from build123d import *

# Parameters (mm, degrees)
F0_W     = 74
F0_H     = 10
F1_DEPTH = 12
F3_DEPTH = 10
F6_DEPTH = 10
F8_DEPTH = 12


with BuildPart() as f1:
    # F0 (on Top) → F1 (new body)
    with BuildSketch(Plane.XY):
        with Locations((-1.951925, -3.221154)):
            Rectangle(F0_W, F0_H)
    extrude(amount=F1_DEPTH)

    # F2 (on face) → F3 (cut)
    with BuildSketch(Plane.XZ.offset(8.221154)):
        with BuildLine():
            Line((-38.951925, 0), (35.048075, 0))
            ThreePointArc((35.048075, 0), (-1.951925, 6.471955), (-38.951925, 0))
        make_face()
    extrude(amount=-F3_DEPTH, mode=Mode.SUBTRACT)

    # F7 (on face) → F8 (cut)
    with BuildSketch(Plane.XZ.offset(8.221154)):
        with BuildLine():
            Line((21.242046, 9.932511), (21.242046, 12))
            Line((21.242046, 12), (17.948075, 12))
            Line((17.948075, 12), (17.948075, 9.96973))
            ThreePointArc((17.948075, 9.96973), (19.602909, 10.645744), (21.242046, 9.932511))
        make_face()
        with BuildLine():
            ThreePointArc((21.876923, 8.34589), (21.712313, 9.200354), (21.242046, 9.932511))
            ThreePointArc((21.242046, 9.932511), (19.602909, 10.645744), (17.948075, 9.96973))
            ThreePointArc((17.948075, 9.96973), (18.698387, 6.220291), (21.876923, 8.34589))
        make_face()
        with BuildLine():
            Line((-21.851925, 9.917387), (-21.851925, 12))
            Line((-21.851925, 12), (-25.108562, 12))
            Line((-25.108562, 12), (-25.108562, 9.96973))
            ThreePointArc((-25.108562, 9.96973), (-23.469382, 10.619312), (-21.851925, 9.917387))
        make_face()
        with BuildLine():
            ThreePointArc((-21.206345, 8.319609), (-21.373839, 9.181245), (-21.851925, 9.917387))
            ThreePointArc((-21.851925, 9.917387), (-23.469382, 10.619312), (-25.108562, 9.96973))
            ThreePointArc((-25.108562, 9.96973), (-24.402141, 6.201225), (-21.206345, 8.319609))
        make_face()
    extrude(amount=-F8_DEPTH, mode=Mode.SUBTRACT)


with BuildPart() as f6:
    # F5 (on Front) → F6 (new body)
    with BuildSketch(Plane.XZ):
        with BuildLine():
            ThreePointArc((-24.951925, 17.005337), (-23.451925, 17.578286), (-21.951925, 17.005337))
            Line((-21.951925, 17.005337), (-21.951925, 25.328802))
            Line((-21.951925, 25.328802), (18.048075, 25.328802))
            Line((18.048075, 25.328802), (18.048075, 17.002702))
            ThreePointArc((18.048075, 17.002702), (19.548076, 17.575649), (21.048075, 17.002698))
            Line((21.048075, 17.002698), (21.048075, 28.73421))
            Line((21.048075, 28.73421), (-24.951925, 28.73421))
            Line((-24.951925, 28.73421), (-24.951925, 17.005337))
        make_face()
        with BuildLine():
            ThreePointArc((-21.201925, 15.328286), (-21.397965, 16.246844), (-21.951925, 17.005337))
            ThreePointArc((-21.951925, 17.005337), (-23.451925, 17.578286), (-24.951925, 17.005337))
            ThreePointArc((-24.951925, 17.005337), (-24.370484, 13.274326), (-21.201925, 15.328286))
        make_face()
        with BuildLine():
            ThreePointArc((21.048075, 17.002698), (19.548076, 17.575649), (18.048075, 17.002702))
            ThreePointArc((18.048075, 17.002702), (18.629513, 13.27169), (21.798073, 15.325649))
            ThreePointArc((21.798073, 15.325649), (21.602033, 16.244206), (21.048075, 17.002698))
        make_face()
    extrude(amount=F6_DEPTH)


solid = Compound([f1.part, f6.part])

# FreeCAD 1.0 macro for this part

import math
import FreeCAD as App
import Part
import Sketcher
from FreeCAD import Vector
Q = App.Units.Quantity


def add_polygon(sketch, points):
    """Adds a closed chain of lines whose ends are joined by coincident constraints."""
    first, n = sketch.GeometryCount, len(points)
    for a, b in zip(points, points[1:] + points[:1]):
        sketch.addGeometry(Part.LineSegment(App.Vector(*a, 0), App.Vector(*b, 0)), False)
    for i in range(n):
        sketch.addConstraint(Sketcher.Constraint("Coincident", first + i, 2, first + (i + 1) % n, 1))

doc = App.newDocument("Part")
params = doc.addObject("Spreadsheet::Sheet", "Params")
for row, (alias, value) in enumerate([
    ("sketch1_width", "74 mm"),
    ("sketch1_height", "10 mm"),
    ("pad1_length", "12 mm"),
    ("sketch2_radius", "109.000001 mm"),
    ("sketch2_width", "74 mm"),
    ("pocket1_length", "10 mm"),
    ("sketch3_radius", "2.3 mm"),
    ("pocket2_length", "12 mm"),
    ("sketch4_width", "40 mm"),
    ("sketch4_width2", "46 mm"),
    ("sketch4_radius", "2.25 mm"),
    ("pad2_length", "10 mm"),
], start=1):
    params.set(f"A{row}", alias)
    params.set(f"B{row}", "=" + value)
    params.setAlias(f"B{row}", alias)

body = doc.addObject("PartDesign::Body", "Body")

sketch1 = body.newObject("Sketcher::SketchObject", "Sketch")
sketch1.AttachmentSupport = (doc.getObject("XY_Plane"), [""])
sketch1.MapMode = "FlatFace"
add_polygon(sketch1, [(-39, 2), (-39, -8), (35, -8), (35, 2)])
sketch1.addConstraint([
    Sketcher.Constraint("Vertical", 0),
    Sketcher.Constraint("Horizontal", 1),
    Sketcher.Constraint("Vertical", 2),
    Sketcher.Constraint("Horizontal", 3),
    Sketcher.Constraint("DistanceX", 1, 1, 1, 2, Q("74 mm")),
    Sketcher.Constraint("DistanceY", 0, 2, 0, 1, Q("10 mm")),
    Sketcher.Constraint("DistanceX", 0, 2, -1, 1, Q("38.951925 mm")),
    Sketcher.Constraint("DistanceY", 0, 2, -1, 1, Q("8.221154 mm")),
])
sketch1.setExpression("Constraints[8]", "Params.sketch1_width")
sketch1.setExpression("Constraints[9]", "Params.sketch1_height")
pad1 = body.newObject("PartDesign::Pad", "Pad")
pad1.Profile = sketch1
pad1.setExpression("Length", "Params.pad1_length")

sketch2 = body.newObject("Sketcher::SketchObject", "Sketch001")
sketch2.AttachmentSupport = (doc.getObject("XZ_Plane"), [""])
sketch2.MapMode = "FlatFace"
sketch2.AttachmentOffset = App.Placement(Vector(0, 0, 8.221154), App.Rotation())
sketch2.addGeometry([
    Part.LineSegment(Vector(-39, 0, 0), Vector(35, 0, 0)),
    Part.ArcOfCircle(Part.Circle(Vector(-2, -103, 0), Vector(0, 0, 1), 109), math.radians(70), math.radians(110)),
], False)
sketch2.addConstraint([
    Sketcher.Constraint("Coincident", 0, 1, 1, 2),
    Sketcher.Constraint("Coincident", 1, 1, 0, 2),
    Sketcher.Constraint("Horizontal", 0),
    Sketcher.Constraint("PointOnObject", 0, 1, -1),
    Sketcher.Constraint("Radius", 1, Q("109.000001 mm")),
    Sketcher.Constraint("DistanceX", 0, 1, 0, 2, Q("74 mm")),
    Sketcher.Constraint("DistanceX", 1, 3, -1, 1, Q("1.951925 mm")),
])
sketch2.setExpression("Constraints[4]", "Params.sketch2_radius")
sketch2.setExpression("Constraints[5]", "Params.sketch2_width")
pocket1 = body.newObject("PartDesign::Pocket", "Pocket")
pocket1.Profile = sketch2
pocket1.setExpression("Length", "Params.pocket1_length")

sketch3 = body.newObject("Sketcher::SketchObject", "Sketch002")
sketch3.AttachmentSupport = (doc.getObject("XZ_Plane"), [""])
sketch3.MapMode = "FlatFace"
sketch3.AttachmentOffset = App.Placement(Vector(0, 0, 8.221154), App.Rotation())
sketch3.addGeometry([
    Part.LineSegment(Vector(21.2, 9.9, 0), Vector(21.2, 12, 0)),
    Part.LineSegment(Vector(21.2, 12, 0), Vector(17.9, 12, 0)),
    Part.LineSegment(Vector(17.9, 12, 0), Vector(17.9, 10, 0)),
    Part.ArcOfCircle(Part.Circle(Vector(19.6, 8.3, 0), Vector(0, 0, 1), 2.3), math.radians(135), math.radians(360)),
    Part.ArcOfCircle(Part.Circle(Vector(19.6, 8.3, 0), Vector(0, 0, 1), 2.3), math.radians(0), math.radians(44)),
    Part.LineSegment(Vector(-21.9, 9.9, 0), Vector(-21.9, 12, 0)),
    Part.LineSegment(Vector(-21.9, 12, 0), Vector(-25.1, 12, 0)),
    Part.LineSegment(Vector(-25.1, 12, 0), Vector(-25.1, 10, 0)),
    Part.ArcOfCircle(Part.Circle(Vector(-23.5, 8.3, 0), Vector(0, 0, 1), 2.3), math.radians(134), math.radians(360)),
    Part.ArcOfCircle(Part.Circle(Vector(-23.5, 8.3, 0), Vector(0, 0, 1), 2.3), math.radians(0), math.radians(44)),
], False)
sketch3.addConstraint([
    Sketcher.Constraint("Coincident", 0, 2, 1, 1),
    Sketcher.Constraint("Coincident", 1, 2, 2, 1),
    Sketcher.Constraint("Coincident", 2, 2, 3, 1),
    Sketcher.Constraint("Tangent", 3, 2, 4, 1),
    Sketcher.Constraint("Coincident", 4, 2, 0, 1),
    Sketcher.Constraint("Coincident", 5, 2, 6, 1),
    Sketcher.Constraint("Coincident", 6, 2, 7, 1),
    Sketcher.Constraint("Coincident", 7, 2, 8, 1),
    Sketcher.Constraint("Tangent", 8, 2, 9, 1),
    Sketcher.Constraint("Coincident", 9, 2, 5, 1),
    Sketcher.Constraint("Vertical", 0),
    Sketcher.Constraint("Horizontal", 1),
    Sketcher.Constraint("Vertical", 2),
    Sketcher.Constraint("Vertical", 5),
    Sketcher.Constraint("Horizontal", 6),
    Sketcher.Constraint("Vertical", 7),
    Sketcher.Constraint("Equal", 3, 8),
    Sketcher.Constraint("Equal", 4, 9),
    Sketcher.Constraint("Horizontal", 4, 3, 3, 2),
    Sketcher.Constraint("Horizontal", 1, 2, 5, 2),
    Sketcher.Constraint("Horizontal", 2, 2, 7, 2),
    Sketcher.Constraint("Horizontal", 9, 3, 8, 2),
    Sketcher.Constraint("Radius", 3, Q("2.3 mm")),
    Sketcher.Constraint("DistanceY", -1, 1, 0, 2, Q("12 mm")),
    Sketcher.Constraint("DistanceX", 5, 2, 1, 2, Q("39.8 mm")),
    Sketcher.Constraint("Radius", 4, Q("2.300004 mm")),
    Sketcher.Constraint("DistanceX", 1, 2, 1, 1, Q("3.293971 mm")),
    Sketcher.Constraint("DistanceY", 0, 1, 0, 2, Q("2.067489 mm")),
    Sketcher.Constraint("DistanceY", 2, 2, 2, 1, Q("2.03027 mm")),
    Sketcher.Constraint("DistanceX", 6, 2, 6, 1, Q("3.256637 mm")),
    Sketcher.Constraint("DistanceY", 5, 1, 5, 2, Q("2.082613 mm")),
    Sketcher.Constraint("DistanceX", -1, 1, 4, 3, Q("19.576919 mm")),
])
sketch3.setExpression("Constraints[22]", "Params.sketch3_radius")
pocket2 = body.newObject("PartDesign::Pocket", "Pocket001")
pocket2.Profile = sketch3
pocket2.setExpression("Length", "Params.pocket2_length")
body2 = doc.addObject("PartDesign::Body", "Body001")

sketch4 = body2.newObject("Sketcher::SketchObject", "Sketch003")
sketch4.AttachmentSupport = (doc.getObject("XZ_Plane001"), [""])
sketch4.MapMode = "FlatFace"
sketch4.addGeometry([
    Part.LineSegment(Vector(-22, 17, 0), Vector(-22, 25.3, 0)),
    Part.LineSegment(Vector(-22, 25.3, 0), Vector(18, 25.3, 0)),
    Part.LineSegment(Vector(18, 25.3, 0), Vector(18, 17, 0)),
    Part.ArcOfCircle(Part.Circle(Vector(19.5, 15.3, 0), Vector(0, 0, 1), 2.3), math.radians(132), math.radians(360)),
    Part.ArcOfCircle(Part.Circle(Vector(19.5, 15.3, 0), Vector(0, 0, 1), 2.3), math.radians(0), math.radians(48)),
    Part.LineSegment(Vector(21, 17, 0), Vector(21, 28.7, 0)),
    Part.LineSegment(Vector(21, 28.7, 0), Vector(-25, 28.7, 0)),
    Part.LineSegment(Vector(-25, 28.7, 0), Vector(-25, 17, 0)),
    Part.ArcOfCircle(Part.Circle(Vector(-23.5, 15.3, 0), Vector(0, 0, 1), 2.3), math.radians(132), math.radians(360)),
    Part.ArcOfCircle(Part.Circle(Vector(-23.5, 15.3, 0), Vector(0, 0, 1), 2.2), math.radians(0), math.radians(48)),
], False)
sketch4.addConstraint([
    Sketcher.Constraint("Coincident", 0, 2, 1, 1),
    Sketcher.Constraint("Coincident", 1, 2, 2, 1),
    Sketcher.Constraint("Coincident", 2, 2, 3, 1),
    Sketcher.Constraint("Tangent", 3, 2, 4, 1),
    Sketcher.Constraint("Coincident", 4, 2, 5, 1),
    Sketcher.Constraint("Coincident", 5, 2, 6, 1),
    Sketcher.Constraint("Coincident", 6, 2, 7, 1),
    Sketcher.Constraint("Coincident", 7, 2, 8, 1),
    Sketcher.Constraint("Tangent", 8, 2, 9, 1),
    Sketcher.Constraint("Coincident", 9, 2, 0, 1),
    Sketcher.Constraint("Vertical", 0),
    Sketcher.Constraint("Horizontal", 1),
    Sketcher.Constraint("Vertical", 2),
    Sketcher.Constraint("Vertical", 5),
    Sketcher.Constraint("Horizontal", 6),
    Sketcher.Constraint("Vertical", 7),
    Sketcher.Constraint("Equal", 3, 8),
    Sketcher.Constraint("Equal", 8, 9),
    Sketcher.Constraint("Horizontal", 4, 3, 3, 2),
    Sketcher.Constraint("Horizontal", 9, 3, 8, 2),
    Sketcher.Constraint("Horizontal", 7, 2, 9, 2),
    Sketcher.Constraint("DistanceX", 1, 1, 1, 2, Q("40 mm")),
    Sketcher.Constraint("DistanceX", 6, 2, 6, 1, Q("46 mm")),
    Sketcher.Constraint("Radius", 3, Q("2.25 mm")),
    Sketcher.Constraint("DistanceX", 8, 3, 3, 3, Q("42.999998 mm")),
    Sketcher.Constraint("DistanceX", 2, 2, 4, 2, Q("3 mm")),
    Sketcher.Constraint("DistanceY", 2, 2, 2, 1, Q("8.3261 mm")),
    Sketcher.Constraint("Radius", 4, Q("2.250002 mm")),
    Sketcher.Constraint("DistanceY", -1, 1, 0, 2, Q("25.328802 mm")),
    Sketcher.Constraint("DistanceY", 0, 1, 0, 2, Q("8.323465 mm")),
    Sketcher.Constraint("DistanceY", 5, 1, 5, 2, Q("11.731512 mm")),
    Sketcher.Constraint("DistanceX", -1, 1, 4, 3, Q("19.548071 mm")),
])
sketch4.setExpression("Constraints[21]", "Params.sketch4_width")
sketch4.setExpression("Constraints[22]", "Params.sketch4_width2")
sketch4.setExpression("Constraints[23]", "Params.sketch4_radius")
pad2 = body2.newObject("PartDesign::Pad", "Pad001")
pad2.Profile = sketch4
pad2.setExpression("Length", "Params.pad2_length")

doc.recompute()
